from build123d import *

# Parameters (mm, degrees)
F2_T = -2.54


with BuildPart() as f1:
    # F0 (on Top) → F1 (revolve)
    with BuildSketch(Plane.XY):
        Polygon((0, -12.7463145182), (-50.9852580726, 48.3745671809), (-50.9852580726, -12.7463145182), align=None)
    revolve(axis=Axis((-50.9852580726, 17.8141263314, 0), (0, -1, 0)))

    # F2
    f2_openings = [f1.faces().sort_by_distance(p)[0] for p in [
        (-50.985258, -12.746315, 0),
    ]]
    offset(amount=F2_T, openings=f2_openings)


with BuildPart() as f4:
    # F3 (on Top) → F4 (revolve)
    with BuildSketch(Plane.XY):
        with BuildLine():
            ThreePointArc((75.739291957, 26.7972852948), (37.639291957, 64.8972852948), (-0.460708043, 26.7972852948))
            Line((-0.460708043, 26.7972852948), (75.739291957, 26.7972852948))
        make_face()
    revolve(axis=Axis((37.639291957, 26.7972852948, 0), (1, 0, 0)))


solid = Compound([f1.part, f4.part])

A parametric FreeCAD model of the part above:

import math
import FreeCAD as App
import Part
import Sketcher

V = App.Vector
Q = App.Units.Quantity


def faces_at(feature, points):
    """Names of the faces that lie closest to the given points."""
    faces = feature.Shape.Faces
    near = lambda p: min(range(len(faces)), key=lambda i: faces[i].distToShape(Part.Vertex(*p))[0])
    return sorted({f"Face{near(p) + 1}" for p in points})


def add_polygon(sketch, points):
    """Adds a closed chain of lines whose ends are joined by coincident constraints."""
    first, n = sketch.GeometryCount, len(points)
    for a, b in zip(points, points[1:] + points[:1]):
        sketch.addGeometry(Part.LineSegment(App.Vector(*a, 0), App.Vector(*b, 0)), False)
    for i in range(n):
        sketch.addConstraint(Sketcher.Constraint("Coincident", first + i, 2, first + (i + 1) % n, 1))

doc = App.newDocument("Part")
body = doc.addObject("PartDesign::Body", "Body")

sketch1 = body.newObject("Sketcher::SketchObject", "Sketch")
sketch1.AttachmentSupport = (doc.getObject("XY_Plane"), [""])
sketch1.MapMode = "FlatFace"
add_polygon(sketch1, [(0, -13), (-51, 48), (-51, -13)])
sketch1.addGeometry(Part.LineSegment(V(-51, 48, 0), V(-51, -13, 0)), True)
sketch1.addConstraint([
    Sketcher.Constraint("Vertical", 1),
    Sketcher.Constraint("Horizontal", 2),
    Sketcher.Constraint("Vertical", 3),
    Sketcher.Constraint("Coincident", 3, 1, 0, 2),
    Sketcher.Constraint("PointOnObject", 2, 2, -2),
    Sketcher.Constraint("Horizontal", 2, 2, 3, 2),
    Sketcher.Constraint("DistanceX", 2, 1, 2, 2, Q("50.985258 mm")),
    Sketcher.Constraint("DistanceY", 1, 2, 1, 1, Q("61.120882 mm")),
    Sketcher.Constraint("DistanceY", -1, 1, 0, 2, Q("48.374567 mm")),
])
revolution = body.newObject("PartDesign::Revolution", "Revolution")
revolution.Profile = sketch1
revolution.ReferenceAxis = (sketch1, ["Axis0"])
revolution.Angle = 360
doc.recompute()

thickness = body.newObject("PartDesign::Thickness", "Thickness")
thickness.Base = (revolution, faces_at(revolution, [(-50.985, -12.746, 0)]))
thickness.Value = Q("0.1 in")
thickness.Reversed = True
thickness.Join = "Arc"
body2 = doc.addObject("PartDesign::Body", "Body001")

sketch2 = body2.newObject("Sketcher::SketchObject", "Sketch001")
sketch2.AttachmentSupport = (doc.getObject("XY_Plane001"), [""])
sketch2.MapMode = "FlatFace"
sketch2.addGeometry([
    Part.ArcOfCircle(Part.Circle(V(38, 27, 0), V(0, 0, 1), 38), math.radians(0), math.radians(180)),
    Part.LineSegment(V(0, 27, 0), V(76, 27, 0)),
], False)
sketch2.addGeometry(Part.LineSegment(V(0, 27, 0), V(76, 27, 0)), True)
sketch2.addConstraint([
    Sketcher.Constraint("Coincident", 0, 1, 1, 2),
    Sketcher.Constraint("Coincident", 1, 1, 0, 2),
    Sketcher.Constraint("Horizontal", 1),
    Sketcher.Constraint("Horizontal", 2),
    Sketcher.Constraint("Coincident", 2, 1, 1, 1),
    Sketcher.Constraint("Equal", 1, 2),
    Sketcher.Constraint("Radius", 0, Q("1.5 in")),
    Sketcher.Constraint("DistanceX", -1, 1, 0, 3, Q("37.639292 mm")),
    Sketcher.Constraint("DistanceY", -1, 1, 0, 3, Q("26.797285 mm")),
    Sketcher.Constraint("DistanceY", -1, 1, 0, 1, Q("26.797285 mm")),
])
revolution2 = body2.newObject("PartDesign::Revolution", "Revolution001")
revolution2.Profile = sketch2
revolution2.ReferenceAxis = (sketch2, ["Axis0"])
revolution2.Angle = 360

doc.recompute()
